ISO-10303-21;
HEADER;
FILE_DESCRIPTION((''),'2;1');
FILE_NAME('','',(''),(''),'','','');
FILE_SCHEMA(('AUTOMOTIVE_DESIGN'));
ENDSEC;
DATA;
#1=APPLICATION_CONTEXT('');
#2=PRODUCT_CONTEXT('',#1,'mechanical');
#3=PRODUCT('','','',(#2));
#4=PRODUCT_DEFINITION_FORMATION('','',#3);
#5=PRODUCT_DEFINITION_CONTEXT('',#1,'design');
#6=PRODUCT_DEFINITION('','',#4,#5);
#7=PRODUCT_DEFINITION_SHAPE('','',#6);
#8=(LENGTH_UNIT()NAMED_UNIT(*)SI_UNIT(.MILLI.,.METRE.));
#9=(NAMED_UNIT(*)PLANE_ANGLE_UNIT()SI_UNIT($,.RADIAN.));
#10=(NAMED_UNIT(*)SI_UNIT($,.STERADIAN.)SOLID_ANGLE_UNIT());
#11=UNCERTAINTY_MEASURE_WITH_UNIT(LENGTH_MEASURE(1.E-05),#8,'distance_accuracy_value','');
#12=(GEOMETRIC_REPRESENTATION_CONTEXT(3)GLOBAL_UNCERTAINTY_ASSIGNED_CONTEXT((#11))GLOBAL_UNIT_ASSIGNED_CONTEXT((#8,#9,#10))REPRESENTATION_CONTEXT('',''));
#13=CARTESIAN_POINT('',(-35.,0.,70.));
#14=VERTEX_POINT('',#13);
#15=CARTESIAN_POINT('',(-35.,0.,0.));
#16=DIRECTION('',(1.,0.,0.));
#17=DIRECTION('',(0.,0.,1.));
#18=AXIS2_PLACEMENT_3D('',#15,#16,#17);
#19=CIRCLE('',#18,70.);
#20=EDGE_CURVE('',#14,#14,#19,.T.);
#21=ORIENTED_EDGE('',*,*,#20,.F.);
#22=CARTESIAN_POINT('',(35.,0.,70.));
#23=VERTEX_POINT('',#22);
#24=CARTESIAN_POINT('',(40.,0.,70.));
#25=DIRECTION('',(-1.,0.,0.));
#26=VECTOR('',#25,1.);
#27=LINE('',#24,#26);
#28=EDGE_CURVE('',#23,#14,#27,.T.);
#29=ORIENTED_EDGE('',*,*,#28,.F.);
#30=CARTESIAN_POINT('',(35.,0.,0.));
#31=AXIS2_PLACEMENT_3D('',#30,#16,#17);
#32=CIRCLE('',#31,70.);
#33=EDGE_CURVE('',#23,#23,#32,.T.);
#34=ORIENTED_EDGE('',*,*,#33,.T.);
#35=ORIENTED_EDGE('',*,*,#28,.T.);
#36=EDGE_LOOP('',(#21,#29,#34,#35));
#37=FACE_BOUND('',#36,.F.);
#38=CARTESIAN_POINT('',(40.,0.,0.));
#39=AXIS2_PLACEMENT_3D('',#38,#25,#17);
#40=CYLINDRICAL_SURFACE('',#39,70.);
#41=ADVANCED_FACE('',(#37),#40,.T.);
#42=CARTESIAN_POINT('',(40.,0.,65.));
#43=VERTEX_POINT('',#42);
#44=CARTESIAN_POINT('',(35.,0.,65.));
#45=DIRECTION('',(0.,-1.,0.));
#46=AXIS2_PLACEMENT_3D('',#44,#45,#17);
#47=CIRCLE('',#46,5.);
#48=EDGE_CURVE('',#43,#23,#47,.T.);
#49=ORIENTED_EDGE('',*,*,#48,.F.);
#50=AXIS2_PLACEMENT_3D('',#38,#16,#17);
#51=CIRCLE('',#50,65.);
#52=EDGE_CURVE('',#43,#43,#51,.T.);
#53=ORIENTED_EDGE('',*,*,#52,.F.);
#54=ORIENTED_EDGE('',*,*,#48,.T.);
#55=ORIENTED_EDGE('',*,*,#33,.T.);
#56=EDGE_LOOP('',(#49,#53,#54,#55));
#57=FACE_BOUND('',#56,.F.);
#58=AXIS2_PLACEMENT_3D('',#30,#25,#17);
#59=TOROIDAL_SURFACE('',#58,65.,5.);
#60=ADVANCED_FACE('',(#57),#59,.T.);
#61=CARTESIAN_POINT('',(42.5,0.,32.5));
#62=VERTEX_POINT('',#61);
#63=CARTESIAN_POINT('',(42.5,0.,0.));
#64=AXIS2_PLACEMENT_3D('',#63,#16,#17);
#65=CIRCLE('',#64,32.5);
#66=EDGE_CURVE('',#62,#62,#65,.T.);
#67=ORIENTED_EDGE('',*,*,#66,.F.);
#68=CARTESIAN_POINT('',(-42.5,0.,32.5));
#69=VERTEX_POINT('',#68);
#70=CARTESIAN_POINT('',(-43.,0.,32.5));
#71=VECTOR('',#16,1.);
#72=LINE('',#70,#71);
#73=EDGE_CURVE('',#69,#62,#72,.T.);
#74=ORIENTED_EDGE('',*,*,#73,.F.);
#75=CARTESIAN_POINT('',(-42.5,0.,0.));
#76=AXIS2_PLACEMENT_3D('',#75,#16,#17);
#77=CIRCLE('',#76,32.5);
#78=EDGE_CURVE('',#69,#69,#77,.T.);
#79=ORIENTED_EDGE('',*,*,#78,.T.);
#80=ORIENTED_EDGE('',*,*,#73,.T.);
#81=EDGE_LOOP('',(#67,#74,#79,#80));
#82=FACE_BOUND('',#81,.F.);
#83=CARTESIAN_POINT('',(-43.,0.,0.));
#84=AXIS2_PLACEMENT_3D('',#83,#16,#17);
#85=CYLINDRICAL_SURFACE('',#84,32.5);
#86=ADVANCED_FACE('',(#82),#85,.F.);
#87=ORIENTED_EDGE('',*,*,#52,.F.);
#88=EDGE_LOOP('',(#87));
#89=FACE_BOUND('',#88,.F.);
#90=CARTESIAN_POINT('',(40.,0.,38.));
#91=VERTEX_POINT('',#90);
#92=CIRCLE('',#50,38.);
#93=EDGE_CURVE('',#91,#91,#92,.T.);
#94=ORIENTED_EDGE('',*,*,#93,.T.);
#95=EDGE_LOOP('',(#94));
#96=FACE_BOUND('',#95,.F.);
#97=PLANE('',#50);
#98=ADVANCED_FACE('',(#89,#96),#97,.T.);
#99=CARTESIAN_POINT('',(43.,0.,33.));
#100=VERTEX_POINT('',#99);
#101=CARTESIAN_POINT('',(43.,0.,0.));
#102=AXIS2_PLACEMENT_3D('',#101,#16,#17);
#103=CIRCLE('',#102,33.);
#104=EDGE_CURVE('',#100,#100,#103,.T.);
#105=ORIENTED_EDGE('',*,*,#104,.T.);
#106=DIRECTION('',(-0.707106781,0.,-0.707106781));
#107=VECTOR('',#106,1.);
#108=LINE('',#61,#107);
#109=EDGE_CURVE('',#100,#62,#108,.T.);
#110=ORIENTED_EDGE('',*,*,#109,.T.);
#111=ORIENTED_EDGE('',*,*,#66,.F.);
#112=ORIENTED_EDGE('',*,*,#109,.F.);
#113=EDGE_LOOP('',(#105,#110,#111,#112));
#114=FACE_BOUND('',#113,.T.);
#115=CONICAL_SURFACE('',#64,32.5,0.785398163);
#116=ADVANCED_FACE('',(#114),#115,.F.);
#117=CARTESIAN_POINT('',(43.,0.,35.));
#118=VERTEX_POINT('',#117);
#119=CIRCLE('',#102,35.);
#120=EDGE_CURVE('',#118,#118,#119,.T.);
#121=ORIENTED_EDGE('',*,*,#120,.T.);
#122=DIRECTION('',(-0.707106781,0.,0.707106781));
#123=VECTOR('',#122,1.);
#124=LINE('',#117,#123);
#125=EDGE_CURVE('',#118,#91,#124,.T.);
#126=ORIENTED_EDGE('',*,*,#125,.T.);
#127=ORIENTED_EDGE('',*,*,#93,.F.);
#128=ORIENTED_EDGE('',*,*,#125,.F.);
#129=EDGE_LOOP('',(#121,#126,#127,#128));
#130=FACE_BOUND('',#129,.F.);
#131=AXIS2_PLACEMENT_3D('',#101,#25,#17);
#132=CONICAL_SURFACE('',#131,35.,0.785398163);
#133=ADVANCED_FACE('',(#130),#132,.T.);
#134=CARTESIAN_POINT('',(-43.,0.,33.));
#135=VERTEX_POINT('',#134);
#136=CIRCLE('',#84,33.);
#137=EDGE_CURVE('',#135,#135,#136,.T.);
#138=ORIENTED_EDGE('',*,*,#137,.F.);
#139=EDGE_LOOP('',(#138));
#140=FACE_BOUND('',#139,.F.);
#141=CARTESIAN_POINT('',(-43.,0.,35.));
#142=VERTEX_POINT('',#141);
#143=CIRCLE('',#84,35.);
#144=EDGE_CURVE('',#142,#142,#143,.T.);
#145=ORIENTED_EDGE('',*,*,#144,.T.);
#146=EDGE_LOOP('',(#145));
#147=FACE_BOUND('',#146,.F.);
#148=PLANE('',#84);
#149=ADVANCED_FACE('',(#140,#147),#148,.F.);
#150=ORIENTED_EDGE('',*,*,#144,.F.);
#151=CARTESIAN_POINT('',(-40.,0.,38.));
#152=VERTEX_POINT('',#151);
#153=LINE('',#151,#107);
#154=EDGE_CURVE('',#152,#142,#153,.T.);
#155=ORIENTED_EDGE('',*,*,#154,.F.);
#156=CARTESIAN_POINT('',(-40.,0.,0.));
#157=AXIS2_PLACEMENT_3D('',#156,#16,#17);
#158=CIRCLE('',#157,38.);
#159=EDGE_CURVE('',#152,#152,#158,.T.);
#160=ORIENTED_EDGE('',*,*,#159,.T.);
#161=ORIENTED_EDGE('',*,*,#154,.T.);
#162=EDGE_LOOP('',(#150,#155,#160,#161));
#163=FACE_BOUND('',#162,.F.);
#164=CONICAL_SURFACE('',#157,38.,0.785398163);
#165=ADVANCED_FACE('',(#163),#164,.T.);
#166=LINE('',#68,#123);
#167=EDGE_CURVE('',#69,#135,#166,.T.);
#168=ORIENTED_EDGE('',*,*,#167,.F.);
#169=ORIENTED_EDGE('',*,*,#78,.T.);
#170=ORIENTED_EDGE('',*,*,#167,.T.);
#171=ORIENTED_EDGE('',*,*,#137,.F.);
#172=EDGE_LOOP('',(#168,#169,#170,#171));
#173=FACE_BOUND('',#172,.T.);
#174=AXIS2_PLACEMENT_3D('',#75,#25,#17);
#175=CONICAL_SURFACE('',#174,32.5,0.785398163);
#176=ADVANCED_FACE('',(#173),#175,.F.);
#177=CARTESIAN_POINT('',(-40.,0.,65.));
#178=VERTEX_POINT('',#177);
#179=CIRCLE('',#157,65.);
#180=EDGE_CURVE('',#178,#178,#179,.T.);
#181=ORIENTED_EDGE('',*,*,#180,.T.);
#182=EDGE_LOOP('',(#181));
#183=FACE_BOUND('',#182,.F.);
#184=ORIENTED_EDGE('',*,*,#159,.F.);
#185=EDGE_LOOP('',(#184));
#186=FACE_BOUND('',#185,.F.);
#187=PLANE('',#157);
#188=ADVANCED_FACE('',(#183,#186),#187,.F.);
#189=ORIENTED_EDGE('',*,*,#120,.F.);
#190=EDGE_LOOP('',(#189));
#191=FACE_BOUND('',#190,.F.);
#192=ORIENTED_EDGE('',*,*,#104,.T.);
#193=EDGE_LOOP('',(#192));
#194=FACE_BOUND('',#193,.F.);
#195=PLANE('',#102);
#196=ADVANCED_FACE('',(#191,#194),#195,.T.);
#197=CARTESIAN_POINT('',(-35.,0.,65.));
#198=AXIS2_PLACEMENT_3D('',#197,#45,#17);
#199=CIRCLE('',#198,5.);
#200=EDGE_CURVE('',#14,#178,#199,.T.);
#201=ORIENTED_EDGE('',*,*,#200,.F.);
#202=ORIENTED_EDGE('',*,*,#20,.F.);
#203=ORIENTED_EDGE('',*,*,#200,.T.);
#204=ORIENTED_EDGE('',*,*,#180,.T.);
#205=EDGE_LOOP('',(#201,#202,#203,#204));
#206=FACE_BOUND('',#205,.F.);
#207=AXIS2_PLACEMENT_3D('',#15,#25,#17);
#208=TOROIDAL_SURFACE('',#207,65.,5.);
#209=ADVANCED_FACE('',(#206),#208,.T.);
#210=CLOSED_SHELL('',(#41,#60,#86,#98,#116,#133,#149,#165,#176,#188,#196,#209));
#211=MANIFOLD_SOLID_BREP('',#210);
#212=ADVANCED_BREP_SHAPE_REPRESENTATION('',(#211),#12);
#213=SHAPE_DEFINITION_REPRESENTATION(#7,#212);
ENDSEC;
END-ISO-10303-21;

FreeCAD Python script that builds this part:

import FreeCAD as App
import Part
import Sketcher
Q = App.Units.Quantity


def edges_at(feature, points):
    """Names of the edges that pass closest to the given points."""
    edges = feature.Shape.Edges
    near = lambda p: min(range(len(edges)), key=lambda i: edges[i].distToShape(Part.Vertex(*p))[0])
    return sorted({f"Edge{near(p) + 1}" for p in points})

doc = App.newDocument("Part")
body = doc.addObject("PartDesign::Body", "Body")

sketch1 = body.newObject("Sketcher::SketchObject", "Sketch")
sketch1.AttachmentSupport = (doc.getObject("XZ_Plane"), [""])
sketch1.MapMode = "FlatFace"
sketch1.addGeometry([
    Part.LineSegment(App.Vector(-43, 35, 0), App.Vector(-43, 32.5, 0)),
    Part.LineSegment(App.Vector(-43, 32.5, 0), App.Vector(43, 32.5, 0)),
    Part.LineSegment(App.Vector(43, 32.5, 0), App.Vector(43, 35, 0)),
    Part.LineSegment(App.Vector(43, 35, 0), App.Vector(40, 38, 0)),
    Part.LineSegment(App.Vector(40, 38, 0), App.Vector(40, 70, 0)),
    Part.LineSegment(App.Vector(40, 70, 0), App.Vector(-40, 70, 0)),
    Part.LineSegment(App.Vector(-40, 70, 0), App.Vector(-40, 38, 0)),
    Part.LineSegment(App.Vector(-40, 38, 0), App.Vector(-43, 35, 0)),
], False)
sketch1.addConstraint([
    Sketcher.Constraint("Coincident", 0, 2, 1, 1),
    Sketcher.Constraint("Coincident", 1, 2, 2, 1),
    Sketcher.Constraint("Coincident", 2, 2, 3, 1),
    Sketcher.Constraint("Coincident", 3, 2, 4, 1),
    Sketcher.Constraint("Coincident", 4, 2, 5, 1),
    Sketcher.Constraint("Coincident", 5, 2, 6, 1),
    Sketcher.Constraint("Coincident", 6, 2, 7, 1),
    Sketcher.Constraint("Coincident", 7, 2, 0, 1),
    Sketcher.Constraint("Vertical", 0),
    Sketcher.Constraint("Horizontal", 1),
    Sketcher.Constraint("Vertical", 2),
    Sketcher.Constraint("Vertical", 4),
    Sketcher.Constraint("Horizontal", 5),
    Sketcher.Constraint("Vertical", 6),
    Sketcher.Constraint("Symmetric", 3, 2, 6, 2, -2),
    Sketcher.Constraint("Symmetric", 2, 2, 7, 2, -2),
    Sketcher.Constraint("Perpendicular", 3, 7),
    Sketcher.Constraint("DistanceX", 1, 1, 1, 2, Q("86 mm")),
    Sketcher.Constraint("DistanceX", 5, 2, 5, 1, Q("80 mm")),
    Sketcher.Constraint("DistanceY", 4, 1, 4, 2, Q("32 mm")),
    Sketcher.Constraint("DistanceY", 0, 2, 0, 1, Q("2.5 mm")),
    Sketcher.Constraint("DistanceY", -1, 1, 2, 2, Q("35 mm")),
])
revolution = body.newObject("PartDesign::Revolution", "Revolution")
revolution.Profile = sketch1
revolution.ReferenceAxis = (sketch1, ["H_Axis"])
revolution.Angle = 360
doc.recompute()

fillet = body.newObject("PartDesign::Fillet", "Fillet")
fillet.Base = (revolution, edges_at(revolution, [(-40, 0, -70), (40, 0, -70)]))
fillet.Radius = 5
doc.recompute()

chamfer = body.newObject("PartDesign::Chamfer", "Chamfer")
chamfer.Base = (fillet, edges_at(fillet, [(-43, 0, -32.5), (43, 0, -32.5), (0, 0, 32.5)]))
chamfer.Size = 0.5

doc.recompute()
